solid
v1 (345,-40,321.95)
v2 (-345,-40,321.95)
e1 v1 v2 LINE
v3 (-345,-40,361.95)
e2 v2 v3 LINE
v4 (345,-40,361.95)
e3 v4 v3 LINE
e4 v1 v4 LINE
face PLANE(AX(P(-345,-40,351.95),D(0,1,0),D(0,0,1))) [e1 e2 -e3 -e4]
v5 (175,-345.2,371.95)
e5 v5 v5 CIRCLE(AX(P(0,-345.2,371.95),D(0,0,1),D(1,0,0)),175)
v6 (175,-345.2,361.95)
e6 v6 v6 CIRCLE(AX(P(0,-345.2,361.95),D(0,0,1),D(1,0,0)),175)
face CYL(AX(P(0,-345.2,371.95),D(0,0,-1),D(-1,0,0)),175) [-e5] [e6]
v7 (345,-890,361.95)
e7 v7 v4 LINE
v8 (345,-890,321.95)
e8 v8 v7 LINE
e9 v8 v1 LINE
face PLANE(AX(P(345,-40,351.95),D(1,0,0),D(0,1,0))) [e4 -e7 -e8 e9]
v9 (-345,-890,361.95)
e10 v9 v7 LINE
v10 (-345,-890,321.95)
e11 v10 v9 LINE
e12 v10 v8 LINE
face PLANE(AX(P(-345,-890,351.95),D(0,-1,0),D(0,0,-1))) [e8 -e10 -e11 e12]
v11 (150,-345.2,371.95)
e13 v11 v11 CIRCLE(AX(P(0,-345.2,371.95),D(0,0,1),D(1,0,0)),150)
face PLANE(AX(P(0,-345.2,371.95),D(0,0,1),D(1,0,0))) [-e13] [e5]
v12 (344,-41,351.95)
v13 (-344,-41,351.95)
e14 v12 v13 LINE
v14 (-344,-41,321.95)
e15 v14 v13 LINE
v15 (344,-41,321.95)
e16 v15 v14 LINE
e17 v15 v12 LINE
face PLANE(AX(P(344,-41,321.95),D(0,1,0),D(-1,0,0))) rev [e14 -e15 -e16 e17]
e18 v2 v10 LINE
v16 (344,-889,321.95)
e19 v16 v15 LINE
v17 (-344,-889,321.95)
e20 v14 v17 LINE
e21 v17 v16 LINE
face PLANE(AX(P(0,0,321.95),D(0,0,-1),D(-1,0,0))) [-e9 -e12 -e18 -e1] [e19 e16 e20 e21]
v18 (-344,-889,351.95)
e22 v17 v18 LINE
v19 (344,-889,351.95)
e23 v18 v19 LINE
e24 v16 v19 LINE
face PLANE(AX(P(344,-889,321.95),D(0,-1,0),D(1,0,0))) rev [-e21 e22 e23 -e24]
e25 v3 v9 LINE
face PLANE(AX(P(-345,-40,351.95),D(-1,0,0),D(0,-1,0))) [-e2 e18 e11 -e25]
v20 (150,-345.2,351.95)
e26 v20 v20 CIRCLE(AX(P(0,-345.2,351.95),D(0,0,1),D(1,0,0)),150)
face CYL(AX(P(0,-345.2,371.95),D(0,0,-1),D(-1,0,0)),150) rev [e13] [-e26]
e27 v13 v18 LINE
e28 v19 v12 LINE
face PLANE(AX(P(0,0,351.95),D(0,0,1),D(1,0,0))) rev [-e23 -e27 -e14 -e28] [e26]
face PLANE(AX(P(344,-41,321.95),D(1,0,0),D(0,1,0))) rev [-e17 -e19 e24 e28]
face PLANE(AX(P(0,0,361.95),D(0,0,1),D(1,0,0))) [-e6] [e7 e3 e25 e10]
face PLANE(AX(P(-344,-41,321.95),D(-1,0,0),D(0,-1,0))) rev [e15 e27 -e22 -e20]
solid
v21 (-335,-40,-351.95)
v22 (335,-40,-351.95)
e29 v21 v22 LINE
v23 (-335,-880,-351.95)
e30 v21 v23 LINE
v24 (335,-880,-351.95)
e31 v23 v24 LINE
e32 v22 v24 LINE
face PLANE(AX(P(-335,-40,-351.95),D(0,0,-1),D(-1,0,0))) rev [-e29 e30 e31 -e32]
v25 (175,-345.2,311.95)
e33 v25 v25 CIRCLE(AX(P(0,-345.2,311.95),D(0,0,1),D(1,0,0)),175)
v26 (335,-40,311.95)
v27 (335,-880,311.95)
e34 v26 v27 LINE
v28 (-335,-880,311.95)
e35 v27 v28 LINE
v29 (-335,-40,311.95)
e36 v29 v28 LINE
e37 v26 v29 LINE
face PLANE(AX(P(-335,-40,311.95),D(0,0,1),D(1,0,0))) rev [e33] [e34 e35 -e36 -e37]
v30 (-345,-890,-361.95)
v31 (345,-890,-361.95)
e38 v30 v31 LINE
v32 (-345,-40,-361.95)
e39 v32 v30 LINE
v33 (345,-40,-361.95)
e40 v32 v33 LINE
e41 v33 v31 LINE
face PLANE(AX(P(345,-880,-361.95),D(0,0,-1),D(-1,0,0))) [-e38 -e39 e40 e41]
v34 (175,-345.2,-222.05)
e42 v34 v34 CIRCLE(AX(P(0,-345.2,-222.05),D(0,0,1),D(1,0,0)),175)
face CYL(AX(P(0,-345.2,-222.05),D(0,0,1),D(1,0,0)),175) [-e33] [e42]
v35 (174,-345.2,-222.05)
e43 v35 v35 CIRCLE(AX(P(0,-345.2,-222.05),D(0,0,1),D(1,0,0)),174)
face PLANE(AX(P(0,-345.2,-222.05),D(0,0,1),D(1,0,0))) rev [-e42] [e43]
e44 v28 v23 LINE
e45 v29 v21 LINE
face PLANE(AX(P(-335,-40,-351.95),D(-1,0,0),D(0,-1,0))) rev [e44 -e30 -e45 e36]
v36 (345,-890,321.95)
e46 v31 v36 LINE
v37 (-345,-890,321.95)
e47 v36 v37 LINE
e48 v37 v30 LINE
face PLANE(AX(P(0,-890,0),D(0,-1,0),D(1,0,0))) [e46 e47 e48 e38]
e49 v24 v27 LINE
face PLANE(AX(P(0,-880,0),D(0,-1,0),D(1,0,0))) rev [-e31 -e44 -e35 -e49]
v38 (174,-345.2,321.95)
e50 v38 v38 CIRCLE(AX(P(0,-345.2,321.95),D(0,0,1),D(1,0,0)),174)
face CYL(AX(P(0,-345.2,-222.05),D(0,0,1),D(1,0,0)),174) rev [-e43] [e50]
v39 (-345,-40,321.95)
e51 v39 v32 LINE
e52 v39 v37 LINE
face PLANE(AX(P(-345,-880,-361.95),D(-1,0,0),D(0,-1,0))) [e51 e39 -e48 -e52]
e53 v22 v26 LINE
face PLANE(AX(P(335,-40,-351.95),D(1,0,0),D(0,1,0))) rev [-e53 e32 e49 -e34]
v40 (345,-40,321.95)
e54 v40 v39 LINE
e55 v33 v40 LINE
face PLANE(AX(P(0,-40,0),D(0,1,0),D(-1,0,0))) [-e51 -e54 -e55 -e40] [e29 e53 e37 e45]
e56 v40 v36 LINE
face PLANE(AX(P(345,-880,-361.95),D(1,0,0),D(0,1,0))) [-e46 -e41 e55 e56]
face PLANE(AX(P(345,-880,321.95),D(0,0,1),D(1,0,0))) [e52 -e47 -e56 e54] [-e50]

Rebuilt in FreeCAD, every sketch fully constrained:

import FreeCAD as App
import Part
import Sketcher

V = App.Vector

doc = App.newDocument("Part")
params = doc.addObject("Spreadsheet::Sheet", "Params")
for row, (alias, value) in enumerate([
    ("sketch1_width", "690 mm"),
    ("sketch1_height", "683.9 mm"),
    ("pad1_length", "10 mm"),
    ("sketch2_width", "690 mm"),
    ("sketch2_width2", "670 mm"),
    ("sketch2_height", "683.9 mm"),
    ("sketch2_height2", "663.9 mm"),
    ("pad2_length", "850 mm"),
    ("sketch3_diameter", "350 mm"),
    ("pocket1_length", "30 mm"),
    ("sketch4_diameter", "350 mm"),
    ("sketch4_diameter2", "348 mm"),
    ("pad3_length", "544 mm"),
    ("sketch5_width", "690 mm"),
    ("sketch5_height", "850 mm"),
    ("pad4_length", "10 mm"),
    ("sketch6_width", "690 mm"),
    ("sketch6_width2", "688 mm"),
    ("sketch6_height", "850 mm"),
    ("sketch6_height2", "848 mm"),
    ("pad5_length", "40 mm"),
    ("sketch7_diameter", "350 mm"),
    ("sketch7_diameter2", "300 mm"),
    ("pad6_length", "10 mm"),
    ("sketch8_diameter", "300 mm"),
    ("pocket2_length", "50 mm"),
], start=1):
    params.set(f"A{row}", alias)
    params.set(f"B{row}", "=" + value)
    params.setAlias(f"B{row}", alias)

body = doc.addObject("PartDesign::Body", "Body")

# Sketch on XZ plane
sketch1 = body.newObject("Sketcher::SketchObject", "Sketch")
sketch1.AttachmentSupport = (doc.getObject("XZ_Plane"), [""])
sketch1.MapMode = "FlatFace"
sketch1.AttachmentOffset = App.Placement(V(0, 0, 890), App.Rotation())
sketch1.addGeometry([
    Part.LineSegment(V(345, -362, 0), V(345, 322, 0)),
    Part.LineSegment(V(345, 322, 0), V(-345, 322, 0)),
    Part.LineSegment(V(-345, 322, 0), V(-345, -362, 0)),
    Part.LineSegment(V(-345, -362, 0), V(345, -362, 0)),
], False)
sketch1.addConstraint([
    Sketcher.Constraint("Coincident", 0, 2, 1, 1),
    Sketcher.Constraint("Coincident", 1, 2, 2, 1),
    Sketcher.Constraint("Coincident", 2, 2, 3, 1),
    Sketcher.Constraint("Coincident", 3, 2, 0, 1),
    Sketcher.Constraint("Vertical", 0),
    Sketcher.Constraint("Horizontal", 1),
    Sketcher.Constraint("Vertical", 2),
    Sketcher.Constraint("Horizontal", 3),
    Sketcher.Constraint("DistanceX", 1, 2, 1, 1, 690.0),
    Sketcher.Constraint("DistanceY", 0, 1, 0, 2, 683.9),
    Sketcher.Constraint("DistanceX", -1, 1, 0, 2, 345.0),
    Sketcher.Constraint("DistanceY", -1, 1, 0, 2, 321.95),
])
sketch1.setExpression("Constraints[8]", "Params.sketch1_width")
sketch1.setExpression("Constraints[9]", "Params.sketch1_height")
pad1 = body.newObject("PartDesign::Pad", "Pad")
pad1.Profile = sketch1
pad1.setExpression("Length", "Params.pad1_length")
pad1.Reversed = True

# Sketch on XZ plane
sketch2 = body.newObject("Sketcher::SketchObject", "Sketch001")
sketch2.AttachmentSupport = (doc.getObject("XZ_Plane"), [""])
sketch2.MapMode = "FlatFace"
sketch2.AttachmentOffset = App.Placement(V(0, 0, 890), App.Rotation())
sketch2.addGeometry([
    Part.LineSegment(V(345, -362, 0), V(345, 322, 0)),  # 0
    Part.LineSegment(V(345, 322, 0), V(-345, 322, 0)),  # 1
    Part.LineSegment(V(-345, 322, 0), V(-345, -362, 0)),  # 2
    Part.LineSegment(V(-345, -362, 0), V(345, -362, 0)),  # 3
    Part.LineSegment(V(-335, 312, 0), V(335, 312, 0)),  # 4
    Part.LineSegment(V(335, 312, 0), V(335, -352, 0)),  # 5
    Part.LineSegment(V(335, -352, 0), V(-335, -352, 0)),  # 6
    Part.LineSegment(V(-335, -352, 0), V(-335, 312, 0)),  # 7
], False)
sketch2.addConstraint([
    Sketcher.Constraint("Coincident", 0, 2, 1, 1),
    Sketcher.Constraint("Coincident", 1, 2, 2, 1),
    Sketcher.Constraint("Coincident", 2, 2, 3, 1),
    Sketcher.Constraint("Coincident", 3, 2, 0, 1),
    Sketcher.Constraint("Coincident", 4, 2, 5, 1),
    Sketcher.Constraint("Coincident", 5, 2, 6, 1),
    Sketcher.Constraint("Coincident", 6, 2, 7, 1),
    Sketcher.Constraint("Coincident", 7, 2, 4, 1),
    Sketcher.Constraint("Vertical", 0),
    Sketcher.Constraint("Horizontal", 1),
    Sketcher.Constraint("Vertical", 2),
    Sketcher.Constraint("Horizontal", 3),
    Sketcher.Constraint("Horizontal", 4),
    Sketcher.Constraint("Vertical", 5),
    Sketcher.Constraint("Horizontal", 6),
    Sketcher.Constraint("Vertical", 7),
    Sketcher.Constraint("DistanceX", 1, 2, 1, 1, 690.0),
    Sketcher.Constraint("DistanceX", 4, 1, 4, 2, 670.0),
    Sketcher.Constraint("DistanceY", 0, 1, 0, 2, 683.9),
    Sketcher.Constraint("DistanceY", 5, 2, 5, 1, 663.9),
    Sketcher.Constraint("DistanceX", -1, 1, 0, 2, 345.0),
    Sketcher.Constraint("DistanceX", -1, 1, 4, 2, 335.0),
    Sketcher.Constraint("DistanceY", 4, 2, 0, 2, 10.0),
    Sketcher.Constraint("DistanceY", -1, 1, 0, 2, 321.95),
])
sketch2.setExpression("Constraints[16]", "Params.sketch2_width")
sketch2.setExpression("Constraints[17]", "Params.sketch2_width2")
sketch2.setExpression("Constraints[18]", "Params.sketch2_height")
sketch2.setExpression("Constraints[19]", "Params.sketch2_height2")
pad2 = body.newObject("PartDesign::Pad", "Pad001")
pad2.Profile = sketch2
pad2.setExpression("Length", "Params.pad2_length")
pad2.Reversed = True

# Sketch on XY plane
sketch3 = body.newObject("Sketcher::SketchObject", "Sketch002")
sketch3.AttachmentSupport = (doc.getObject("XY_Plane"), [""])
sketch3.MapMode = "FlatFace"
sketch3.AttachmentOffset = App.Placement(V(0, 0, 321.95), App.Rotation())
sketch3.addGeometry(Part.Circle(V(0, -345, 0), V(0, 0, 1), 175), False)
sketch3.addConstraint([
    Sketcher.Constraint("PointOnObject", 0, 3, -2),
    Sketcher.Constraint("Diameter", 0, 350.0),
    Sketcher.Constraint("DistanceY", 0, 3, -1, 1, 345.2),
])
sketch3.setExpression("Constraints[1]", "Params.sketch3_diameter")
pocket1 = body.newObject("PartDesign::Pocket", "Pocket")
pocket1.Profile = sketch3
pocket1.setExpression("Length", "Params.pocket1_length")

# Sketch on XY plane
sketch4 = body.newObject("Sketcher::SketchObject", "Sketch003")
sketch4.AttachmentSupport = (doc.getObject("XY_Plane"), [""])
sketch4.MapMode = "FlatFace"
sketch4.AttachmentOffset = App.Placement(V(0, 0, 321.95), App.Rotation())
sketch4.addGeometry([
    Part.Circle(V(0, -345, 0), V(0, 0, 1), 175),
    Part.Circle(V(0, -345, 0), V(0, 0, 1), 174),
], False)
sketch4.addConstraint([
    Sketcher.Constraint("Coincident", 1, 3, 0, 3),
    Sketcher.Constraint("PointOnObject", 0, 3, -2),
    Sketcher.Constraint("Diameter", 0, 350.0),
    Sketcher.Constraint("Diameter", 1, 348.0),
    Sketcher.Constraint("DistanceY", 0, 3, -1, 1, 345.2),
])
sketch4.setExpression("Constraints[2]", "Params.sketch4_diameter")
sketch4.setExpression("Constraints[3]", "Params.sketch4_diameter2")
pad3 = body.newObject("PartDesign::Pad", "Pad002")
pad3.Profile = sketch4
pad3.setExpression("Length", "Params.pad3_length")
pad3.Reversed = True
body2 = doc.addObject("PartDesign::Body", "Body001")

# Sketch on XY plane
sketch5 = body2.newObject("Sketcher::SketchObject", "Sketch004")
sketch5.AttachmentSupport = (doc.getObject("XY_Plane001"), [""])
sketch5.MapMode = "FlatFace"
sketch5.AttachmentOffset = App.Placement(V(0, 0, 361.95), App.Rotation())
sketch5.addGeometry([
    Part.LineSegment(V(-345, -40, 0), V(-345, -890, 0)),
    Part.LineSegment(V(-345, -890, 0), V(345, -890, 0)),
    Part.LineSegment(V(345, -890, 0), V(345, -40, 0)),
    Part.LineSegment(V(345, -40, 0), V(-345, -40, 0)),
], False)
sketch5.addConstraint([
    Sketcher.Constraint("Coincident", 0, 2, 1, 1),
    Sketcher.Constraint("Coincident", 1, 2, 2, 1),
    Sketcher.Constraint("Coincident", 2, 2, 3, 1),
    Sketcher.Constraint("Coincident", 3, 2, 0, 1),
    Sketcher.Constraint("Vertical", 0),
    Sketcher.Constraint("Horizontal", 1),
    Sketcher.Constraint("Vertical", 2),
    Sketcher.Constraint("Horizontal", 3),
    Sketcher.Constraint("DistanceX", 1, 1, 1, 2, 690.0),
    Sketcher.Constraint("DistanceY", 0, 2, 0, 1, 850.0),
    Sketcher.Constraint("DistanceX", 0, 2, -1, 1, 345.0),
    Sketcher.Constraint("DistanceY", 0, 2, -1, 1, 890.0),
])
sketch5.setExpression("Constraints[8]", "Params.sketch5_width")
sketch5.setExpression("Constraints[9]", "Params.sketch5_height")
pad4 = body2.newObject("PartDesign::Pad", "Pad003")
pad4.Profile = sketch5
pad4.setExpression("Length", "Params.pad4_length")
pad4.Reversed = True

# Sketch on XY plane
sketch6 = body2.newObject("Sketcher::SketchObject", "Sketch005")
sketch6.AttachmentSupport = (doc.getObject("XY_Plane001"), [""])
sketch6.MapMode = "FlatFace"
sketch6.AttachmentOffset = App.Placement(V(0, 0, 361.95), App.Rotation())
sketch6.addGeometry([
    Part.LineSegment(V(-345, -40, 0), V(-345, -890, 0)),  # 0
    Part.LineSegment(V(-345, -890, 0), V(345, -890, 0)),  # 1
    Part.LineSegment(V(345, -890, 0), V(345, -40, 0)),  # 2
    Part.LineSegment(V(345, -40, 0), V(-345, -40, 0)),  # 3
    Part.LineSegment(V(344, -889, 0), V(-344, -889, 0)),  # 4
    Part.LineSegment(V(-344, -889, 0), V(-344, -41, 0)),  # 5
    Part.LineSegment(V(-344, -41, 0), V(344, -41, 0)),  # 6
    Part.LineSegment(V(344, -41, 0), V(344, -889, 0)),  # 7
], False)
sketch6.addConstraint([
    Sketcher.Constraint("Coincident", 0, 2, 1, 1),
    Sketcher.Constraint("Coincident", 1, 2, 2, 1),
    Sketcher.Constraint("Coincident", 2, 2, 3, 1),
    Sketcher.Constraint("Coincident", 3, 2, 0, 1),
    Sketcher.Constraint("Coincident", 4, 2, 5, 1),
    Sketcher.Constraint("Coincident", 5, 2, 6, 1),
    Sketcher.Constraint("Coincident", 6, 2, 7, 1),
    Sketcher.Constraint("Coincident", 7, 2, 4, 1),
    Sketcher.Constraint("Vertical", 0),
    Sketcher.Constraint("Horizontal", 1),
    Sketcher.Constraint("Vertical", 2),
    Sketcher.Constraint("Horizontal", 3),
    Sketcher.Constraint("Horizontal", 4),
    Sketcher.Constraint("Vertical", 5),
    Sketcher.Constraint("Horizontal", 6),
    Sketcher.Constraint("Vertical", 7),
    Sketcher.Constraint("DistanceX", 1, 1, 1, 2, 690.0),
    Sketcher.Constraint("DistanceX", 4, 2, 4, 1, 688.0),
    Sketcher.Constraint("DistanceY", 0, 2, 0, 1, 850.0),
    Sketcher.Constraint("DistanceY", 5, 1, 5, 2, 848.0),
    Sketcher.Constraint("DistanceX", 0, 2, -1, 1, 345.0),
    Sketcher.Constraint("DistanceY", 0, 2, -1, 1, 890.0),
    Sketcher.Constraint("DistanceX", 4, 2, -1, 1, 344.0),
    Sketcher.Constraint("DistanceY", 4, 2, -1, 1, 889.0),
])
sketch6.setExpression("Constraints[16]", "Params.sketch6_width")
sketch6.setExpression("Constraints[17]", "Params.sketch6_width2")
sketch6.setExpression("Constraints[18]", "Params.sketch6_height")
sketch6.setExpression("Constraints[19]", "Params.sketch6_height2")
pad5 = body2.newObject("PartDesign::Pad", "Pad004")
pad5.Profile = sketch6
pad5.setExpression("Length", "Params.pad5_length")
pad5.Reversed = True

# Sketch on XY plane
sketch7 = body2.newObject("Sketcher::SketchObject", "Sketch006")
sketch7.AttachmentSupport = (doc.getObject("XY_Plane001"), [""])
sketch7.MapMode = "FlatFace"
sketch7.AttachmentOffset = App.Placement(V(0, 0, 361.95), App.Rotation())
sketch7.addGeometry([
    Part.Circle(V(0, -345, 0), V(0, 0, 1), 175),
    Part.Circle(V(0, -345, 0), V(0, 0, 1), 150),
], False)
sketch7.addConstraint([
    Sketcher.Constraint("Coincident", 1, 3, 0, 3),
    Sketcher.Constraint("PointOnObject", 0, 3, -2),
    Sketcher.Constraint("Diameter", 0, 350.0),
    Sketcher.Constraint("Diameter", 1, 300.0),
    Sketcher.Constraint("DistanceY", 0, 3, -1, 1, 345.2),
])
sketch7.setExpression("Constraints[2]", "Params.sketch7_diameter")
sketch7.setExpression("Constraints[3]", "Params.sketch7_diameter2")
pad6 = body2.newObject("PartDesign::Pad", "Pad005")
pad6.Profile = sketch7
pad6.setExpression("Length", "Params.pad6_length")

# Sketch on XY plane
sketch8 = body2.newObject("Sketcher::SketchObject", "Sketch007")
sketch8.AttachmentSupport = (doc.getObject("XY_Plane001"), [""])
sketch8.MapMode = "FlatFace"
sketch8.AttachmentOffset = App.Placement(V(0, 0, 361.95), App.Rotation())
sketch8.addGeometry(Part.Circle(V(0, -345, 0), V(0, 0, 1), 150), False)
sketch8.addConstraint([
    Sketcher.Constraint("PointOnObject", 0, 3, -2),
    Sketcher.Constraint("Diameter", 0, 300.0),
    Sketcher.Constraint("DistanceY", 0, 3, -1, 1, 345.2),
])
sketch8.setExpression("Constraints[1]", "Params.sketch8_diameter")
pocket2 = body2.newObject("PartDesign::Pocket", "Pocket001")
pocket2.Profile = sketch8
pocket2.setExpression("Length", "Params.pocket2_length")

doc.recompute()
